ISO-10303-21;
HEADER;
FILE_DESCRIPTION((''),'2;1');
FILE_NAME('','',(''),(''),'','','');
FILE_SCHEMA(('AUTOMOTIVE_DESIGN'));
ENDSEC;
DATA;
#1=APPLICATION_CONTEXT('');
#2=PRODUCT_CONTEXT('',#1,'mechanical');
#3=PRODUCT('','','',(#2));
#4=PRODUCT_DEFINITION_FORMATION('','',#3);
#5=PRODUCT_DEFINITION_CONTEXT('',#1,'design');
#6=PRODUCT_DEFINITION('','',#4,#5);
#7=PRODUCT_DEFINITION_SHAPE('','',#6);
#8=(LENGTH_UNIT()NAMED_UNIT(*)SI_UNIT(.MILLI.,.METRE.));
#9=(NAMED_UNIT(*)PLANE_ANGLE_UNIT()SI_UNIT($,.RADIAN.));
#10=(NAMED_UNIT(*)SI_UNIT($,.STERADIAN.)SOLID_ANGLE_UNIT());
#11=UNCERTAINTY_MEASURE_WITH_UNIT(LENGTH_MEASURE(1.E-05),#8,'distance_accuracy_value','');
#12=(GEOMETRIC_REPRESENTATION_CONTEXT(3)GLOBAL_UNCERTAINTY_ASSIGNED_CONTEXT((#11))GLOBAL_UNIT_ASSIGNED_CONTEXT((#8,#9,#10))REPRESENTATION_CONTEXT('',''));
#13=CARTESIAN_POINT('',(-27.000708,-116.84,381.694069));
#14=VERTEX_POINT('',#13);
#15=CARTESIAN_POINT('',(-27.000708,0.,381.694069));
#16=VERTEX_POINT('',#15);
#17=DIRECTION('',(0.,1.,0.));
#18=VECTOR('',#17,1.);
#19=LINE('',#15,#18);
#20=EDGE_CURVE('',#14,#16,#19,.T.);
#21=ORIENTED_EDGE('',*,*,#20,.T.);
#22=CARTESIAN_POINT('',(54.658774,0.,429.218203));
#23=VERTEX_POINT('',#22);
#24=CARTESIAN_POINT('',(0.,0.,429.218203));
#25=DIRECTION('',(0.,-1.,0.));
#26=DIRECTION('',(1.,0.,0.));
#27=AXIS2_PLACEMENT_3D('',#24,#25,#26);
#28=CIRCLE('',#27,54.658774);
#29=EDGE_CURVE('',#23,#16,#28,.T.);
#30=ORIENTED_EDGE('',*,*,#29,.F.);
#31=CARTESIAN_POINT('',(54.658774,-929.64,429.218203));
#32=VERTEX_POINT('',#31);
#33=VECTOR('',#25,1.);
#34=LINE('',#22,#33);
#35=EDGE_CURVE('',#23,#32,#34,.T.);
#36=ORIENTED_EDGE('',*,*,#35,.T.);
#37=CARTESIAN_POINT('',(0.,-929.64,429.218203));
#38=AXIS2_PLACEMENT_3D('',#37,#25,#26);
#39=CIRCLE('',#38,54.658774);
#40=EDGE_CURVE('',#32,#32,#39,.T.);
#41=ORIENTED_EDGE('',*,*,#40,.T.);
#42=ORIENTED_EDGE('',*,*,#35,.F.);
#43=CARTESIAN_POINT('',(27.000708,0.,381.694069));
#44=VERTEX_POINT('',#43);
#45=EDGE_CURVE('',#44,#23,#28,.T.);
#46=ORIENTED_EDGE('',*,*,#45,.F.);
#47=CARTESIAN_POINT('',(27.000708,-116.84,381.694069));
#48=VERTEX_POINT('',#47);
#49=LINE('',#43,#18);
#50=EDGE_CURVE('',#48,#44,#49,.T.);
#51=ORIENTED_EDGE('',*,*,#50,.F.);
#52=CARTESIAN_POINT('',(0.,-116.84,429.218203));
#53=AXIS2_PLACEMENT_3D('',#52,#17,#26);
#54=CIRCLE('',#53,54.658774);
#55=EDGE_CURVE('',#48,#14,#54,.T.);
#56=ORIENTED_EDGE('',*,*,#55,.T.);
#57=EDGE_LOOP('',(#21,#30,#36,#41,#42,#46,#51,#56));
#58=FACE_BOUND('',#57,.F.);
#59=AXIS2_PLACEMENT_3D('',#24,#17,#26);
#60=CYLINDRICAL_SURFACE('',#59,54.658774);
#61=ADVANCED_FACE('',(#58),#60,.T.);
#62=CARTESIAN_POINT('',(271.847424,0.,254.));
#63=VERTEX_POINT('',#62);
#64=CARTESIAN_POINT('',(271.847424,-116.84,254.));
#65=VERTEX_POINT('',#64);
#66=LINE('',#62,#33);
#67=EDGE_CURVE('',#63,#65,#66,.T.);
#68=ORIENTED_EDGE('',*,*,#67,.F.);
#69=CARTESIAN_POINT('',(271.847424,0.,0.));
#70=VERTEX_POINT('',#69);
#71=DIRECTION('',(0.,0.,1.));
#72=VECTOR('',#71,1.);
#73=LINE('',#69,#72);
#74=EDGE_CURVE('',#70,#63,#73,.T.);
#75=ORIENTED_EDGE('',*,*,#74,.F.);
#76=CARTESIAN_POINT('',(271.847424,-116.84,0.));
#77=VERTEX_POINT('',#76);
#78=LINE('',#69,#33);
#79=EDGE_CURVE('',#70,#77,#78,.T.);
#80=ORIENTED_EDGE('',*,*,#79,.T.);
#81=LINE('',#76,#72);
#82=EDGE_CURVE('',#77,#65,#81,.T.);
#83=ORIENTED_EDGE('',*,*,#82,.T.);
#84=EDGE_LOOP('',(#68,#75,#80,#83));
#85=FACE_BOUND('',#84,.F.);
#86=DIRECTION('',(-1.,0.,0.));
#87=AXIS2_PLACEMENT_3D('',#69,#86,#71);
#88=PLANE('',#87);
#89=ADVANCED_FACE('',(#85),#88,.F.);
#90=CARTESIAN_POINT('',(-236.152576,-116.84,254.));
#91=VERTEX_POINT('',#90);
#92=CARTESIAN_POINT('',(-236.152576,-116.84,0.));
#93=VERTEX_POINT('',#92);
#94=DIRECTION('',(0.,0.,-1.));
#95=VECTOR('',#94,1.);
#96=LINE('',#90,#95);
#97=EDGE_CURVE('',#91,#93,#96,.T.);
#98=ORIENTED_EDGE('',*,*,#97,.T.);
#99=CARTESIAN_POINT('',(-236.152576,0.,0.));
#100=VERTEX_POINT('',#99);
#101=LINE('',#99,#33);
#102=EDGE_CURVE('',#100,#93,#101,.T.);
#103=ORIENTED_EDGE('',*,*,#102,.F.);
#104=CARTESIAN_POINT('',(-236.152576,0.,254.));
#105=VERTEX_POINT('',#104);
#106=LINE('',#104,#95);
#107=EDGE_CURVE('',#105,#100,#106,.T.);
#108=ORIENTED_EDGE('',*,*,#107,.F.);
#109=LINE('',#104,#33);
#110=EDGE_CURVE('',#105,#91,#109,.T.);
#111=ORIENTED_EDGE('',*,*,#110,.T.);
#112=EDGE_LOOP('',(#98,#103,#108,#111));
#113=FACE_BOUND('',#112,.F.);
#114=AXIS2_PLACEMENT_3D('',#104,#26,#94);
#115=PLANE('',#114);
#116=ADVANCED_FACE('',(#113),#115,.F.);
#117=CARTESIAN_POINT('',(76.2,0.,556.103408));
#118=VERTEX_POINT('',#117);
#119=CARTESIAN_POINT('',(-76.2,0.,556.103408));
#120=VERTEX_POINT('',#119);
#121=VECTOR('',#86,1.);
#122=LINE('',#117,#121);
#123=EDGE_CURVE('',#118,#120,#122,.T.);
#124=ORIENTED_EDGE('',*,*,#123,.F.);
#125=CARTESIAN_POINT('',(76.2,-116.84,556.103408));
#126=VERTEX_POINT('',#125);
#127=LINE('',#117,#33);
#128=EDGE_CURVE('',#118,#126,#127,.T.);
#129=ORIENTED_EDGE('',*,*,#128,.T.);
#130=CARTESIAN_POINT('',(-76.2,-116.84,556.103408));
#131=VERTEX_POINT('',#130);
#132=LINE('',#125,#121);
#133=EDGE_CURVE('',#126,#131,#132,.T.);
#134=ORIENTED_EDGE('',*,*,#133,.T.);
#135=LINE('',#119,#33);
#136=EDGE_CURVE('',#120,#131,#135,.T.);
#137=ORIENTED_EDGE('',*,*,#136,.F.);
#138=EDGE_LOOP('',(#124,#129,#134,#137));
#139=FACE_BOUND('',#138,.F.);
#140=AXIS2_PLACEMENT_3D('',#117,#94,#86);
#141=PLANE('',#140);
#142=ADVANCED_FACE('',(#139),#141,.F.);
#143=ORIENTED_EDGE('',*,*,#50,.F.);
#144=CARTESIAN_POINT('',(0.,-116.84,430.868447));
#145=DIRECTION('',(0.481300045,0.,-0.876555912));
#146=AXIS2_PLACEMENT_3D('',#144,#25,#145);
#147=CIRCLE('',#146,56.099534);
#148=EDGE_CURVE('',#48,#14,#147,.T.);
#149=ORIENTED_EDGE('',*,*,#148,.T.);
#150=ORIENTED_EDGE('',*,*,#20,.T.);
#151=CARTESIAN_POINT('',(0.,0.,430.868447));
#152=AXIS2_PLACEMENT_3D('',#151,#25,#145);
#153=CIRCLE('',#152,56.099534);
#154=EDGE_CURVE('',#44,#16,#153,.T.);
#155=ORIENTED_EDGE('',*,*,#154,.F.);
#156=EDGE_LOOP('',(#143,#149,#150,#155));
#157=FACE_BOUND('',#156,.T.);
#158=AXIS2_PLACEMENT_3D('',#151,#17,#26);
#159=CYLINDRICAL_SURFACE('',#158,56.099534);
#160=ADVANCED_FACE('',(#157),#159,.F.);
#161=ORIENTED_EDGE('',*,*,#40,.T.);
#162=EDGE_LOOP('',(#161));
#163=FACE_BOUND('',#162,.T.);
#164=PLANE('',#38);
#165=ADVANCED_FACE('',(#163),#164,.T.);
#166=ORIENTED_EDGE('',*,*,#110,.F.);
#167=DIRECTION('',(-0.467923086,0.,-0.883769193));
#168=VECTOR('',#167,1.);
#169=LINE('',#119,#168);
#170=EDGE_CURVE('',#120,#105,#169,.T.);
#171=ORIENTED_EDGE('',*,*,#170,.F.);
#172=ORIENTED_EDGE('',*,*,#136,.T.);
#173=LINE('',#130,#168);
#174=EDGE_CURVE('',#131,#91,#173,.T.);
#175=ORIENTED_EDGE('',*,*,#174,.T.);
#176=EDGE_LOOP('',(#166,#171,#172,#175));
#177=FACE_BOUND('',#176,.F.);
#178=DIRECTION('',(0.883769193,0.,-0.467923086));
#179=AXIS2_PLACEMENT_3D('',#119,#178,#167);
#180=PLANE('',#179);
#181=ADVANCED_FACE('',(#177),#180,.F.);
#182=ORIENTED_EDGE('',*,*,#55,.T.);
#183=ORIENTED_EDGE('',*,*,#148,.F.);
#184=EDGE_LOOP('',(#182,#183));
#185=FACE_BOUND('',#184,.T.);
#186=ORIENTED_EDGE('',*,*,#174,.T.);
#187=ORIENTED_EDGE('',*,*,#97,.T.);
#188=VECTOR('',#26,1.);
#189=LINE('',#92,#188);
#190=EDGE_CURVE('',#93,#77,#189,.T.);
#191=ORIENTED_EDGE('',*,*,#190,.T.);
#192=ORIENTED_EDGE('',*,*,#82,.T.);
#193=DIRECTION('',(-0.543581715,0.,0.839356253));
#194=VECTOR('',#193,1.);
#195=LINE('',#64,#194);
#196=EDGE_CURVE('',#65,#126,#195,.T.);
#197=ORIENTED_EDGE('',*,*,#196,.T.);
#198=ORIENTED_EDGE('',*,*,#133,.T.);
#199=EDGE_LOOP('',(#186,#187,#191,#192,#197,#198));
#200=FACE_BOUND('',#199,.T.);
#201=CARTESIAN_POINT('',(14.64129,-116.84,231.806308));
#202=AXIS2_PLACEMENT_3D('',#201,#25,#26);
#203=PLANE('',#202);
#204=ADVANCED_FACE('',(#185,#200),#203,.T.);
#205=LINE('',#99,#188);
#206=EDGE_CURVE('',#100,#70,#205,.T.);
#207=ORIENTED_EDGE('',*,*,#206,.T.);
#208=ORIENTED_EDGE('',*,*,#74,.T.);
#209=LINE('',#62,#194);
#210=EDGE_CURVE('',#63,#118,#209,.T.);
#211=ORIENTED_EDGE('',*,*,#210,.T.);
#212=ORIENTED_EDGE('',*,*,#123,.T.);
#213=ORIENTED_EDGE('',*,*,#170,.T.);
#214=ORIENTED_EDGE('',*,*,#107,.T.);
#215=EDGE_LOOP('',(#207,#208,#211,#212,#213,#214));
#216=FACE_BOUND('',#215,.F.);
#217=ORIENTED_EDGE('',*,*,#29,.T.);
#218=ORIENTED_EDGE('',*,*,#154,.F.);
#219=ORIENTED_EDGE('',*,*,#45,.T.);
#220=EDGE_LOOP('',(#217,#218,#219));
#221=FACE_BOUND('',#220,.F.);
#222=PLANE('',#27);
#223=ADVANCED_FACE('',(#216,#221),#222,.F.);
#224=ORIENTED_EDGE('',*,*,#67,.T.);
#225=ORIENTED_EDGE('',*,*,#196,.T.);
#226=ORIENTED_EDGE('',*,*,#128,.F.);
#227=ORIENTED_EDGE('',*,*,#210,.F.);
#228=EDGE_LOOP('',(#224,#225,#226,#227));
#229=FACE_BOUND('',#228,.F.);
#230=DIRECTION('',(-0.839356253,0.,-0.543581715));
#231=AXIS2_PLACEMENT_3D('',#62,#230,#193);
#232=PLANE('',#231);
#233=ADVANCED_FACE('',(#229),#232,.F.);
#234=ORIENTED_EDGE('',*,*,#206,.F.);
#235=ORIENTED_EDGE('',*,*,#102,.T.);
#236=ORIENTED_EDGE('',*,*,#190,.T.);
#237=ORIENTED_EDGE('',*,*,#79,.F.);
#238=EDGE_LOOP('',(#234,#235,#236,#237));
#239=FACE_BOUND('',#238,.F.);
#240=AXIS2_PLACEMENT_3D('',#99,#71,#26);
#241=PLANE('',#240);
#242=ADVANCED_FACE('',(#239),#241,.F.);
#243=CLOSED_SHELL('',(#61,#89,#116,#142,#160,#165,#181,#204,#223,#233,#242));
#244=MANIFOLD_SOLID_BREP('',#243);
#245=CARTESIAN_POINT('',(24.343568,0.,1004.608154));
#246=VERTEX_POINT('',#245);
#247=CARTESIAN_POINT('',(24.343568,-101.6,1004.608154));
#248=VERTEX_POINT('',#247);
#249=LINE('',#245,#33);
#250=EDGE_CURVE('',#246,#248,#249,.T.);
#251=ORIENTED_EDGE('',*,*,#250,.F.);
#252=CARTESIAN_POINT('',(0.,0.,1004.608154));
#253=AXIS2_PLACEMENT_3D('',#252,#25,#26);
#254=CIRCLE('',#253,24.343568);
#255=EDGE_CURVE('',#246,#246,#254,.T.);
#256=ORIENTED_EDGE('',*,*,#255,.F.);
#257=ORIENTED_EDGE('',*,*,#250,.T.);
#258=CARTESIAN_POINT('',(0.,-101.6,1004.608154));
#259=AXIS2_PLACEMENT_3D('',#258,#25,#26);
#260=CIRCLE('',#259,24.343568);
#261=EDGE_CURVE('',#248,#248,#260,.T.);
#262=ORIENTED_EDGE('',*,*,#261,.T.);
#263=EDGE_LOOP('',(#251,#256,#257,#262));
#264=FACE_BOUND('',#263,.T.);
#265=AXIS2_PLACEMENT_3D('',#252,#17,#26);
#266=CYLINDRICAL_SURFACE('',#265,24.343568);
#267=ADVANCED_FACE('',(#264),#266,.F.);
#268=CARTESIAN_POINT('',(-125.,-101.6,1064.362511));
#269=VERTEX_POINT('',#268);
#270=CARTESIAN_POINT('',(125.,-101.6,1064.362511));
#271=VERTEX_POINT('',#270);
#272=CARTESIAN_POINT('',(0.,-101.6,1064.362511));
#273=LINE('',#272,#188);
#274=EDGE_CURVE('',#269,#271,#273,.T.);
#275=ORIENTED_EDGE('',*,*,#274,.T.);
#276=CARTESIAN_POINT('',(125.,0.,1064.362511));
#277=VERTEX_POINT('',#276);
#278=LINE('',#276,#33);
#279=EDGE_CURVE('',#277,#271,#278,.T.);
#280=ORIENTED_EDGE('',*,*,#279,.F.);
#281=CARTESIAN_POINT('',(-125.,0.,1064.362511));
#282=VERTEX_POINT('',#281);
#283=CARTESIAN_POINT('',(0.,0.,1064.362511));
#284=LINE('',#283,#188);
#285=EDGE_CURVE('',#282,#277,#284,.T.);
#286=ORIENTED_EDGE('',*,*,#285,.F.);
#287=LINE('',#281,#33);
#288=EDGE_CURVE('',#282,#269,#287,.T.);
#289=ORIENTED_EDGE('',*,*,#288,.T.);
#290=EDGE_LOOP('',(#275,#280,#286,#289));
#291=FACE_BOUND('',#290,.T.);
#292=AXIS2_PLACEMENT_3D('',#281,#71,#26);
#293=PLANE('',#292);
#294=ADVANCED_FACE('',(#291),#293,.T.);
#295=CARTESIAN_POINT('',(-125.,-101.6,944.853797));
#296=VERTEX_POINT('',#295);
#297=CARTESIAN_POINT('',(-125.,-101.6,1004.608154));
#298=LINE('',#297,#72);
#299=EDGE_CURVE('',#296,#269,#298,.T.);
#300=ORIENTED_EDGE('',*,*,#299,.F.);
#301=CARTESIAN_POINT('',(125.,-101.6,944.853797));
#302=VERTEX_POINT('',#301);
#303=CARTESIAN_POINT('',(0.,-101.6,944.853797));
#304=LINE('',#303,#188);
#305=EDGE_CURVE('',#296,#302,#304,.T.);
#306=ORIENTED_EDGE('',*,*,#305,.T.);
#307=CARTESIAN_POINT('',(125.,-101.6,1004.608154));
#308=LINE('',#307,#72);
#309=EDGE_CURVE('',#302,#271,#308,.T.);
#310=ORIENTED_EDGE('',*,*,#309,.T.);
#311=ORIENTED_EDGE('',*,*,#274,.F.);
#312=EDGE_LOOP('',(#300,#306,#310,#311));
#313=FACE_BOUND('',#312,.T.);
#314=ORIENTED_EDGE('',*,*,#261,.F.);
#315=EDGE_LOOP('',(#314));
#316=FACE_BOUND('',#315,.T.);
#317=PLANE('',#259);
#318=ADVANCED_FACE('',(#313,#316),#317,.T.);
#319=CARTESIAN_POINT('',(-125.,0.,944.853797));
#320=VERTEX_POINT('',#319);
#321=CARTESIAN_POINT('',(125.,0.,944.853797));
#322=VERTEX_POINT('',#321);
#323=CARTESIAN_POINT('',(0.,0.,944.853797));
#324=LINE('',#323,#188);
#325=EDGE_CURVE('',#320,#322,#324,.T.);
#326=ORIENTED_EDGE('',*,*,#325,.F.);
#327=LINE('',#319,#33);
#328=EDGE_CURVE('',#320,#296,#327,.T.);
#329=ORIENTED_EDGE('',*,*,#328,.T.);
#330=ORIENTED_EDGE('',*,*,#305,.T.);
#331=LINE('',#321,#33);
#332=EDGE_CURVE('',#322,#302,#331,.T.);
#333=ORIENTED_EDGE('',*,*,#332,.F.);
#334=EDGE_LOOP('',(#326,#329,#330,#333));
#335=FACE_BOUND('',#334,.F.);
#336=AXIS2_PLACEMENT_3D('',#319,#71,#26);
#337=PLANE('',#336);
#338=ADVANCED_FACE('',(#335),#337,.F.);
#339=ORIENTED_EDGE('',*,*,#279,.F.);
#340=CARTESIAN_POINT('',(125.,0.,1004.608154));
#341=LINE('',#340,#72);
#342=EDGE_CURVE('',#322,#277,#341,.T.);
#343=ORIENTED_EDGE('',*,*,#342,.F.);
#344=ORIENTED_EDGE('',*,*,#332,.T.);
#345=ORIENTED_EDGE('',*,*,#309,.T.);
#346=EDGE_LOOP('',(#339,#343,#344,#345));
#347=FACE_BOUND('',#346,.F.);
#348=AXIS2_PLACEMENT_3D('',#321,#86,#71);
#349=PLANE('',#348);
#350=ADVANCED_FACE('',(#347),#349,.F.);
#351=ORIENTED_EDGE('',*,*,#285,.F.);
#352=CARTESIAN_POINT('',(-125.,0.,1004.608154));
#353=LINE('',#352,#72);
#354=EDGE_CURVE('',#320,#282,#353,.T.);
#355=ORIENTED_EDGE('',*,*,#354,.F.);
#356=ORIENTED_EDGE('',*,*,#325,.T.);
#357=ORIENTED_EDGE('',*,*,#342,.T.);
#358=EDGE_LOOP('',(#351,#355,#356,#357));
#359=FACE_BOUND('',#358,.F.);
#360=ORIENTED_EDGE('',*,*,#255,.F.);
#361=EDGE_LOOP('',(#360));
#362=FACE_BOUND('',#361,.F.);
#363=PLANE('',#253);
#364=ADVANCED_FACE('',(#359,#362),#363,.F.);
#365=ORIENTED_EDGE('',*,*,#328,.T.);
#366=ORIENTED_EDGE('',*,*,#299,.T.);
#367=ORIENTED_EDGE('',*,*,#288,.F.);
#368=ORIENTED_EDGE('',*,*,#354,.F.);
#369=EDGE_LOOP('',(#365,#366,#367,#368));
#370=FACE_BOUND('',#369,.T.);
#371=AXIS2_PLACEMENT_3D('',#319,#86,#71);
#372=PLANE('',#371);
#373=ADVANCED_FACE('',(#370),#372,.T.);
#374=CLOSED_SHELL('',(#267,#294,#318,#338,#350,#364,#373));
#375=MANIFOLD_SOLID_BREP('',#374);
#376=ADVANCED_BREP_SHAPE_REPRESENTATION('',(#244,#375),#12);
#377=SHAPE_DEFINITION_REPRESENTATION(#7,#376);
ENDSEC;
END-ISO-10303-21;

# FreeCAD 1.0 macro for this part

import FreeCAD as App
import Part
import Sketcher
Q = App.Units.Quantity


def add_polygon(sketch, points):
    """Adds a closed chain of lines whose ends are joined by coincident constraints."""
    first, n = sketch.GeometryCount, len(points)
    for a, b in zip(points, points[1:] + points[:1]):
        sketch.addGeometry(Part.LineSegment(App.Vector(*a, 0), App.Vector(*b, 0)), False)
    for i in range(n):
        sketch.addConstraint(Sketcher.Constraint("Coincident", first + i, 2, first + (i + 1) % n, 1))

doc = App.newDocument("Part")
body = doc.addObject("PartDesign::Body", "Body")

# Sketch on XZ plane
sketch1 = body.newObject("Sketcher::SketchObject", "Sketch")
sketch1.AttachmentSupport = (doc.getObject("XZ_Plane"), [""])
sketch1.MapMode = "FlatFace"
add_polygon(sketch1, [(-236, 254), (-236, 0), (272, 0), (272, 254), (76, 556), (-76, 556)])  # lines 0-5
sketch1.addGeometry(Part.Circle(App.Vector(0, 431, 0), App.Vector(0, 0, 1), 56), False)  # 6
sketch1.addConstraint([
    Sketcher.Constraint("Vertical", 0),
    Sketcher.Constraint("Horizontal", 1),
    Sketcher.Constraint("Vertical", 2),
    Sketcher.Constraint("Horizontal", 4),
    Sketcher.Constraint("PointOnObject", 6, 3, -2),
    Sketcher.Constraint("PointOnObject", 0, 2, -1),
    Sketcher.Constraint("Horizontal", 2, 2, 5, 2),
    Sketcher.Constraint("DistanceX", 1, 1, 1, 2, Q("20 in")),
    Sketcher.Constraint("DistanceX", 4, 2, 4, 1, Q("6 in")),
    Sketcher.Constraint("DistanceY", 0, 2, 0, 1, Q("10 in")),
    Sketcher.Constraint("DistanceX", -1, 1, 3, 2, Q("3 in")),
    Sketcher.Constraint("Diameter", 6, 112.199068),
    Sketcher.Constraint("DistanceY", 6, 3, 3, 2, 125.234961),
    Sketcher.Constraint("Distance", 3, 359.922747),
    Sketcher.Constraint("Distance", 5, 341.835188),
])
pad1 = body.newObject("PartDesign::Pad", "Pad")
pad1.Profile = sketch1
pad1.Length = Q("4.6 in")

# Sketch on XZ plane
sketch2 = body.newObject("Sketcher::SketchObject", "Sketch001")
sketch2.AttachmentSupport = (doc.getObject("XZ_Plane"), [""])
sketch2.MapMode = "FlatFace"
sketch2.addGeometry(Part.Circle(App.Vector(0, 429, 0), App.Vector(0, 0, 1), 55), False)
sketch2.addConstraint([
    Sketcher.Constraint("PointOnObject", 0, 3, -2),
    Sketcher.Constraint("Diameter", 0, 109.317548),
    Sketcher.Constraint("DistanceY", -1, 1, 0, 3, 429.218203),
])
pad2 = body.newObject("PartDesign::Pad", "Pad001")
pad2.Profile = sketch2
pad2.Length = Q("36.6 in")
body2 = doc.addObject("PartDesign::Body", "Body001")

# Sketch on XZ plane
sketch3 = body2.newObject("Sketcher::SketchObject", "Sketch002")
sketch3.AttachmentSupport = (doc.getObject("XZ_Plane001"), [""])
sketch3.MapMode = "FlatFace"
add_polygon(sketch3, [(-125, 1064), (-125, 945), (125, 945), (125, 1064)])  # lines 0-3
sketch3.addGeometry(Part.Circle(App.Vector(0, 1005, 0), App.Vector(0, 0, 1), 24), False)  # 4
sketch3.addConstraint([
    Sketcher.Constraint("Vertical", 0),
    Sketcher.Constraint("Horizontal", 1),
    Sketcher.Constraint("Vertical", 2),
    Sketcher.Constraint("Horizontal", 3),
    Sketcher.Constraint("PointOnObject", 4, 3, -2),
    Sketcher.Constraint("Diameter", 4, 48.687136),
    Sketcher.Constraint("DistanceX", 1, 1, 1, 2, 250.0),
    Sketcher.Constraint("DistanceX", 0, 2, -1, 1, 125.0),
    Sketcher.Constraint("DistanceY", 0, 2, 0, 1, 119.508714),
    Sketcher.Constraint("DistanceY", -1, 1, 2, 2, 1064.362511),
    Sketcher.Constraint("DistanceY", -1, 1, 4, 3, 1004.608154),
])
pad3 = body2.newObject("PartDesign::Pad", "Pad002")
pad3.Profile = sketch3
pad3.Length = Q("4 in")

doc.recompute()
